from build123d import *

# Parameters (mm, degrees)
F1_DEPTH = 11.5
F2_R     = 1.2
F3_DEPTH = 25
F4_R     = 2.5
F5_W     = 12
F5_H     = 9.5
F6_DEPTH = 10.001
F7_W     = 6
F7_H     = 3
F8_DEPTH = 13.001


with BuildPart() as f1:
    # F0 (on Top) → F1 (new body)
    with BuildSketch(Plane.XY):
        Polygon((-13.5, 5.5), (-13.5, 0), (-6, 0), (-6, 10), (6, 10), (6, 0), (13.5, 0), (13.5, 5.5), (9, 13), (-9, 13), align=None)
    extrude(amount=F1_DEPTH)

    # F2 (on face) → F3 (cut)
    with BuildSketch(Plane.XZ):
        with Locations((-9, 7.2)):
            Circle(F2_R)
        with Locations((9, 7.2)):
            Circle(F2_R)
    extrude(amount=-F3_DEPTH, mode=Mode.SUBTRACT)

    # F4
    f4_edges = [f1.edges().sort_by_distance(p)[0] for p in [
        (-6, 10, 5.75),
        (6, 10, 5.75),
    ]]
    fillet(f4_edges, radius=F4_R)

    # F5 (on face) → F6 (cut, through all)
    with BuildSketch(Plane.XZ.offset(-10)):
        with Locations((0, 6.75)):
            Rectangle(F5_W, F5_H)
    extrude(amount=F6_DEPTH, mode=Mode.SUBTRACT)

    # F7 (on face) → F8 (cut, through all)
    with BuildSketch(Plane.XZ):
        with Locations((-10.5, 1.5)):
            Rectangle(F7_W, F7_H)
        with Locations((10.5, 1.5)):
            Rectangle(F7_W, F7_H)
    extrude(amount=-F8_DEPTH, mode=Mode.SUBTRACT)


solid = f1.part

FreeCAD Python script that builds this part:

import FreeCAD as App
import Part
import Sketcher

V = App.Vector
Q = App.Units.Quantity


def edges_at(feature, points):
    """Names of the edges that pass closest to the given points."""
    edges = feature.Shape.Edges
    near = lambda p: min(range(len(edges)), key=lambda i: edges[i].distToShape(Part.Vertex(*p))[0])
    return sorted({f"Edge{near(p) + 1}" for p in points})


def add_polygon(sketch, points):
    """Adds a closed chain of lines whose ends are joined by coincident constraints."""
    first, n = sketch.GeometryCount, len(points)
    for a, b in zip(points, points[1:] + points[:1]):
        sketch.addGeometry(Part.LineSegment(App.Vector(*a, 0), App.Vector(*b, 0)), False)
    for i in range(n):
        sketch.addConstraint(Sketcher.Constraint("Coincident", first + i, 2, first + (i + 1) % n, 1))

doc = App.newDocument("Part")
body = doc.addObject("PartDesign::Body", "Body")

sketch1 = doc.addObject("Sketcher::SketchObject", "Sketch")
body.addObject(sketch1)
sketch1.AttachmentSupport = (doc.XY_Plane, [""])
sketch1.MapMode = "FlatFace"
add_polygon(sketch1, [(-14, 6), (-14, 0), (-6, 0), (-6, 10), (6, 10), (6, 0), (14, 0), (14, 6), (9, 13), (-9, 13)])
sketch1.addConstraint([
    Sketcher.Constraint("Vertical", 0),
    Sketcher.Constraint("Horizontal", 1),
    Sketcher.Constraint("Vertical", 2),
    Sketcher.Constraint("Horizontal", 3),
    Sketcher.Constraint("Vertical", 4),
    Sketcher.Constraint("Horizontal", 5),
    Sketcher.Constraint("Vertical", 6),
    Sketcher.Constraint("Horizontal", 8),
    Sketcher.Constraint("Symmetric", 1, 2, 4, 2, -1, 1),
    Sketcher.Constraint("Symmetric", 0, 2, 5, 2, -2),
    Sketcher.Constraint("Horizontal", 6, 2, 9, 2),
    Sketcher.Constraint("Equal", 7, 9),
    Sketcher.Constraint("DistanceX", 3, 1, 3, 2, Q("12 mm")),
    Sketcher.Constraint("DistanceX", 8, 2, 8, 1, Q("18 mm")),
    Sketcher.Constraint("DistanceY", 2, 1, 2, 2, Q("10 mm")),
    Sketcher.Constraint("DistanceX", 1, 1, 1, 2, Q("7.5 mm")),
    Sketcher.Constraint("DistanceY", 0, 2, 0, 1, Q("5.5 mm")),
    Sketcher.Constraint("DistanceY", -1, 1, 7, 2, Q("13 mm")),
])
pad1 = doc.addObject("PartDesign::Pad", "Pad")
body.addObject(pad1)
pad1.Profile = sketch1
pad1.Length = 11.5

sketch2 = doc.addObject("Sketcher::SketchObject", "Sketch001")
body.addObject(sketch2)
sketch2.AttachmentSupport = (doc.XZ_Plane, [""])
sketch2.MapMode = "FlatFace"
sketch2.addGeometry([
    Part.Circle(V(-9, 7.2, 0), V(0, 0, 1), 1.2),
    Part.Circle(V(9, 7.2, 0), V(0, 0, 1), 1.2),
], False)
sketch2.addConstraint([
    Sketcher.Constraint("Equal", 0, 1),
    Sketcher.Constraint("Symmetric", 0, 3, 1, 3, -2),
    Sketcher.Constraint("Diameter", 0, Q("2.4 mm")),
    Sketcher.Constraint("DistanceX", 0, 3, -1, 1, Q("9 mm")),
    Sketcher.Constraint("DistanceY", -1, 1, 0, 3, Q("7.2 mm")),
])
pocket1 = doc.addObject("PartDesign::Pocket", "Pocket")
body.addObject(pocket1)
pocket1.Profile = sketch2
pocket1.Length = 25
doc.recompute()

fillet = doc.addObject("PartDesign::Fillet", "Fillet")
body.addObject(fillet)
fillet.Base = (pocket1, edges_at(pocket1, [(-6, 10, 5.75), (6, 10, 5.75)]))
fillet.Radius = 2.5

sketch3 = doc.addObject("Sketcher::SketchObject", "Sketch002")
body.addObject(sketch3)
sketch3.AttachmentSupport = (doc.XZ_Plane, [""])
sketch3.MapMode = "FlatFace"
sketch3.AttachmentOffset = App.Placement(V(0, 0, -10), App.Rotation())
add_polygon(sketch3, [(-6, 12), (-6, 2), (6, 2), (6, 12)])
sketch3.addConstraint([
    Sketcher.Constraint("Vertical", 0),
    Sketcher.Constraint("Horizontal", 1),
    Sketcher.Constraint("Vertical", 2),
    Sketcher.Constraint("Horizontal", 3),
    Sketcher.Constraint("DistanceX", 1, 1, 1, 2, Q("12 mm")),
    Sketcher.Constraint("DistanceY", 0, 2, 0, 1, Q("9.5 mm")),
    Sketcher.Constraint("DistanceX", 0, 2, -1, 1, Q("6 mm")),
    Sketcher.Constraint("DistanceY", -1, 1, 0, 2, Q("2 mm")),
])
pocket2 = doc.addObject("PartDesign::Pocket", "Pocket001")
body.addObject(pocket2)
pocket2.Profile = sketch3
pocket2.Type = "ThroughAll"
pocket2.Reversed = True

sketch4 = doc.addObject("Sketcher::SketchObject", "Sketch003")
body.addObject(sketch4)
sketch4.AttachmentSupport = (doc.XZ_Plane, [""])
sketch4.MapMode = "FlatFace"
add_polygon(sketch4, [(-13.5, 3), (-13.5, 0), (-7.5, 0), (-7.5, 3)])
add_polygon(sketch4, [(7.5, 3), (7.5, 0), (13.5, 0), (13.5, 3)])
sketch4.addConstraint([
    Sketcher.Constraint("Vertical", 0),
    Sketcher.Constraint("Horizontal", 1),
    Sketcher.Constraint("Vertical", 2),
    Sketcher.Constraint("Horizontal", 3),
    Sketcher.Constraint("Vertical", 4),
    Sketcher.Constraint("Horizontal", 5),
    Sketcher.Constraint("Vertical", 6),
    Sketcher.Constraint("Horizontal", 7),
    Sketcher.Constraint("Symmetric", 1, 2, 4, 2, -1, 1),
    Sketcher.Constraint("Symmetric", 0, 2, 5, 2, -2),
    Sketcher.Constraint("Horizontal", 3, 2, 6, 2),
    Sketcher.Constraint("DistanceX", 1, 1, 1, 2, Q("6 mm")),
    Sketcher.Constraint("DistanceY", 0, 2, 0, 1, Q("3 mm")),
    Sketcher.Constraint("DistanceX", 1, 2, 4, 2, Q("15 mm")),
])
pocket3 = doc.addObject("PartDesign::Pocket", "Pocket002")
body.addObject(pocket3)
pocket3.Profile = sketch4
pocket3.Type = "ThroughAll"

doc.recompute()
